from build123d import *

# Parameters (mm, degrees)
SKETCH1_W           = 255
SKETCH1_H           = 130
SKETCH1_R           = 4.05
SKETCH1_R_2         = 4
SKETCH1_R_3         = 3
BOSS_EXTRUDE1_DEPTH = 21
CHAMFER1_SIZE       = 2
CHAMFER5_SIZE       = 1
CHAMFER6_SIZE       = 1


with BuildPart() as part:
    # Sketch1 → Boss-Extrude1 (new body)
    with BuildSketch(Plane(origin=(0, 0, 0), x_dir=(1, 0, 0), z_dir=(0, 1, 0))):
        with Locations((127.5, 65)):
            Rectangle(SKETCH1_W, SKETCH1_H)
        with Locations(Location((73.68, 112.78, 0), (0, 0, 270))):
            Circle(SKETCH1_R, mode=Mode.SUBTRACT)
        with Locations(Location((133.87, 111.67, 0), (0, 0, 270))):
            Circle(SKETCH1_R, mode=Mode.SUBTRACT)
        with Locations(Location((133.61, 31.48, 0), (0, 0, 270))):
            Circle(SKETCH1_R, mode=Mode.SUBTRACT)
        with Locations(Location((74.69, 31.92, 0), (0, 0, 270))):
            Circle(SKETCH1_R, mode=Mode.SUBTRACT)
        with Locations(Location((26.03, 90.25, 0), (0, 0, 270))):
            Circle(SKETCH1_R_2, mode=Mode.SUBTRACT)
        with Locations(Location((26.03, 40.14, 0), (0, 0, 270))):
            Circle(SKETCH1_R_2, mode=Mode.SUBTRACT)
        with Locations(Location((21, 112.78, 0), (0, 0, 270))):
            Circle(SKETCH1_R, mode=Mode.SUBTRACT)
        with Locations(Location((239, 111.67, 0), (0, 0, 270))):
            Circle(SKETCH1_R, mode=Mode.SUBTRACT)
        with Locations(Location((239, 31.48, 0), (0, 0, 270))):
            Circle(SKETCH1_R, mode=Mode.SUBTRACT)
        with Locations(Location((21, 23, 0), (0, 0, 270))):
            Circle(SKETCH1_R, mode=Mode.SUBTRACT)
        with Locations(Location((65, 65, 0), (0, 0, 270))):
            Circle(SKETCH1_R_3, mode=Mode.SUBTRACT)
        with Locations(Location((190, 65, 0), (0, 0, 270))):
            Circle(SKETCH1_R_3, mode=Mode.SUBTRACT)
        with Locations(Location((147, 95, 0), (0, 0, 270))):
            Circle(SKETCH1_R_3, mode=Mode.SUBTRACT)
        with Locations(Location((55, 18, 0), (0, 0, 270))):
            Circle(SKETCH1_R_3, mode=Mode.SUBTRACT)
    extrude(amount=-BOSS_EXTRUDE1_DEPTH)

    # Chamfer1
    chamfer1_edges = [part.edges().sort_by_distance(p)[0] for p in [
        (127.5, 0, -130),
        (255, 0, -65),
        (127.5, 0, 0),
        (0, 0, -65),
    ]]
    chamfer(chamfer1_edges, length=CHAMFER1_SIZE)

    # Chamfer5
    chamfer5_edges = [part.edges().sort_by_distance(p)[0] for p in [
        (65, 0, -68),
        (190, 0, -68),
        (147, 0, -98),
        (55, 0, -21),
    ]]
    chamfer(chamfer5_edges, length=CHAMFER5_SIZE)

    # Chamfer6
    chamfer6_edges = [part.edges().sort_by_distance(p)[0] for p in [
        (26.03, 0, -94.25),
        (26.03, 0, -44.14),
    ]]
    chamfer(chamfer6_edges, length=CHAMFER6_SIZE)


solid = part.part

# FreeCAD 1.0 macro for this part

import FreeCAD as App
import Part
import Sketcher
from FreeCAD import Vector


def edges_at(feature, points):
    """Names of the edges that pass closest to the given points."""
    edges = feature.Shape.Edges
    near = lambda p: min(range(len(edges)), key=lambda i: edges[i].distToShape(Part.Vertex(*p))[0])
    return sorted({f"Edge{near(p) + 1}" for p in points})

doc = App.newDocument("Part")
body = doc.addObject("PartDesign::Body", "Body")

# Sketch on XZ plane
sketch1 = body.newObject("Sketcher::SketchObject", "Sketch")
sketch1.AttachmentSupport = (doc.getObject("XZ_Plane"), [""])
sketch1.MapMode = "FlatFace"
sketch1.addGeometry([
    Part.LineSegment(Vector(0, -130, 0), Vector(0, 0, 0)),  # 0
    Part.LineSegment(Vector(0, 0, 0), Vector(255, 0, 0)),  # 1
    Part.LineSegment(Vector(255, 0, 0), Vector(255, -130, 0)),  # 2
    Part.LineSegment(Vector(255, -130, 0), Vector(0, -130, 0)),  # 3
    Part.Circle(Vector(21, -23, 0), Vector(0, 0, 1), 4.05),  # 4
    Part.Circle(Vector(55, -18, 0), Vector(0, 0, 1), 3),  # 5
    Part.Circle(Vector(26.03, -40.14, 0), Vector(0, 0, 1), 4),  # 6
    Part.Circle(Vector(74.69, -31.92, 0), Vector(0, 0, 1), 4.05),  # 7
    Part.Circle(Vector(65, -65, 0), Vector(0, 0, 1), 3),  # 8
    Part.Circle(Vector(133.61, -31.48, 0), Vector(0, 0, 1), 4.05),  # 9
    Part.Circle(Vector(239, -31.48, 0), Vector(0, 0, 1), 4.05),  # 10
    Part.Circle(Vector(190, -65, 0), Vector(0, 0, 1), 3),  # 11
    Part.Circle(Vector(26.03, -90.25, 0), Vector(0, 0, 1), 4),  # 12
    Part.Circle(Vector(21, -112.78, 0), Vector(0, 0, 1), 4.05),  # 13
    Part.Circle(Vector(73.68, -112.78, 0), Vector(0, 0, 1), 4.05),  # 14
    Part.Circle(Vector(147, -95, 0), Vector(0, 0, 1), 3),  # 15
    Part.Circle(Vector(133.87, -111.67, 0), Vector(0, 0, 1), 4.05),  # 16
    Part.Circle(Vector(239, -111.67, 0), Vector(0, 0, 1), 4.05),  # 17
], False)
sketch1.addConstraint([
    Sketcher.Constraint("Coincident", 0, 2, 1, 1),
    Sketcher.Constraint("Coincident", 1, 2, 2, 1),
    Sketcher.Constraint("Coincident", 2, 2, 3, 1),
    Sketcher.Constraint("Coincident", 3, 2, 0, 1),
    Sketcher.Constraint("Vertical", 0),
    Sketcher.Constraint("Horizontal", 1),
    Sketcher.Constraint("Vertical", 2),
    Sketcher.Constraint("Horizontal", 3),
    Sketcher.Constraint("Coincident", 0, 2, -1, 1),
    Sketcher.Constraint("Equal", 4, 7),
    Sketcher.Constraint("Equal", 5, 8),
    Sketcher.Constraint("Equal", 7, 9),
    Sketcher.Constraint("Equal", 9, 10),
    Sketcher.Constraint("Equal", 8, 11),
    Sketcher.Constraint("Equal", 6, 12),
    Sketcher.Constraint("Equal", 10, 13),
    Sketcher.Constraint("Equal", 13, 14),
    Sketcher.Constraint("Equal", 11, 15),
    Sketcher.Constraint("Equal", 14, 16),
    Sketcher.Constraint("Equal", 16, 17),
    Sketcher.Constraint("Horizontal", 9, 3, 10, 3),
    Sketcher.Constraint("Horizontal", 8, 3, 11, 3),
    Sketcher.Constraint("Horizontal", 13, 3, 14, 3),
    Sketcher.Constraint("Horizontal", 16, 3, 17, 3),
    Sketcher.Constraint("Vertical", 6, 3, 12, 3),
    Sketcher.Constraint("Vertical", 4, 3, 13, 3),
    Sketcher.Constraint("Vertical", 10, 3, 17, 3),
    Sketcher.Constraint("Diameter", 5, 6.0),
    Sketcher.Constraint("Diameter", 6, 8.0),
    Sketcher.Constraint("Diameter", 4, 8.1),
    Sketcher.Constraint("DistanceX", 1, 1, 1, 2, 255.0),
    Sketcher.Constraint("DistanceY", 0, 1, 0, 2, 130.0),
    Sketcher.Constraint("DistanceX", -1, 1, 4, 3, 21.0),
    Sketcher.Constraint("DistanceY", 4, 3, -1, 1, 23.0),
    Sketcher.Constraint("DistanceX", -1, 1, 5, 3, 55.0),
    Sketcher.Constraint("DistanceY", 5, 3, -1, 1, 18.0),
    Sketcher.Constraint("DistanceX", -1, 1, 8, 3, 65.0),
    Sketcher.Constraint("DistanceY", 8, 3, -1, 1, 65.0),
    Sketcher.Constraint("DistanceX", -1, 1, 10, 3, 239.0),
    Sketcher.Constraint("DistanceX", -1, 1, 11, 3, 190.0),
    Sketcher.Constraint("DistanceX", -1, 1, 15, 3, 147.0),
    Sketcher.Constraint("DistanceY", 15, 3, -1, 1, 95.0),
    Sketcher.Constraint("DistanceX", -1, 1, 6, 3, 26.03),
    Sketcher.Constraint("DistanceY", 6, 3, -1, 1, 40.14),
    Sketcher.Constraint("DistanceX", -1, 1, 7, 3, 74.69),
    Sketcher.Constraint("DistanceY", 7, 3, -1, 1, 31.92),
    Sketcher.Constraint("DistanceX", -1, 1, 9, 3, 133.61),
    Sketcher.Constraint("DistanceY", 9, 3, -1, 1, 31.48),
    Sketcher.Constraint("DistanceY", 12, 3, -1, 1, 90.25),
    Sketcher.Constraint("DistanceY", 13, 3, -1, 1, 112.78),
    Sketcher.Constraint("DistanceX", -1, 1, 14, 3, 73.68),
    Sketcher.Constraint("DistanceX", -1, 1, 16, 3, 133.87),
    Sketcher.Constraint("DistanceY", 16, 3, -1, 1, 111.67),
])
pad1 = body.newObject("PartDesign::Pad", "Pad")
pad1.Profile = sketch1
pad1.Length = 21
doc.recompute()

chamfer = body.newObject("PartDesign::Chamfer", "Chamfer")
chamfer.Base = (pad1, edges_at(pad1, [
    (127.5, 0, -130),
    (255, 0, -65),
    (127.5, 0, 0),
    (0, 0, -65),
]))
chamfer.Size = 2
doc.recompute()

chamfer2 = body.newObject("PartDesign::Chamfer", "Chamfer001")
chamfer2.Base = (chamfer, edges_at(chamfer, [
    (65, 0, -68),
    (190, 0, -68),
    (147, 0, -98),
    (55, 0, -21),
]))
chamfer2.Size = 1
doc.recompute()

chamfer3 = body.newObject("PartDesign::Chamfer", "Chamfer002")
chamfer3.Base = (chamfer2, edges_at(chamfer2, [(26.03, 0, -94.25), (26.03, 0, -44.14)]))
chamfer3.Size = 1

doc.recompute()
